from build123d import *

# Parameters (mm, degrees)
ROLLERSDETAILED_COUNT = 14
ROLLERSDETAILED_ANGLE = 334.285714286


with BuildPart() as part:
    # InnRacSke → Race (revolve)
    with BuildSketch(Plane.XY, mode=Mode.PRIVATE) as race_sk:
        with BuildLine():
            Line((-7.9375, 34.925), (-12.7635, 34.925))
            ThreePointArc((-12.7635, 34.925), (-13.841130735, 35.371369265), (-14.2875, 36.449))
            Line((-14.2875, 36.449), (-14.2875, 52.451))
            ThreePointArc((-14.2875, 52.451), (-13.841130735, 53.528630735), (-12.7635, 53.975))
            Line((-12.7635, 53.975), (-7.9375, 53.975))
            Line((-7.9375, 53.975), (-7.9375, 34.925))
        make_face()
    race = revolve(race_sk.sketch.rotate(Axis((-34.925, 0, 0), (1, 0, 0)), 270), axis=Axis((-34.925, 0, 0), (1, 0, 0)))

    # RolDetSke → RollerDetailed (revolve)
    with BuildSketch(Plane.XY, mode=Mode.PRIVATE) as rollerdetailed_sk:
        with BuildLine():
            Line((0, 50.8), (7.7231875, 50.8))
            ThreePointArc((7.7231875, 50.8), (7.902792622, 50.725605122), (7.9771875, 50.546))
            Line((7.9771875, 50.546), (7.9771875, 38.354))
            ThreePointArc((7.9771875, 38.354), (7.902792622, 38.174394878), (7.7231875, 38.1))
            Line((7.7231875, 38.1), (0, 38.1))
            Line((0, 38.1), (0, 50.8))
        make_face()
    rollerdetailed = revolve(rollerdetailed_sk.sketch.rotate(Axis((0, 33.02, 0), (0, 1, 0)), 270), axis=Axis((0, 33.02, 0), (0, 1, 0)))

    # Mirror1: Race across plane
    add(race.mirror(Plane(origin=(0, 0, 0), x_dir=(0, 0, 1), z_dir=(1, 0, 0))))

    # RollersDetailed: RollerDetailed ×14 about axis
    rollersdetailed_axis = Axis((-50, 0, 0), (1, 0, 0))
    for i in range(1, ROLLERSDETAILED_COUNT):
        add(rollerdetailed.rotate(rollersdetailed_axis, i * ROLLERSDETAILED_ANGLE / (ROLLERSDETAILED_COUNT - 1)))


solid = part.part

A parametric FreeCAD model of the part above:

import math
import FreeCAD as App
import Part
import Sketcher
from FreeCAD import Vector
Q = App.Units.Quantity

doc = App.newDocument("Part")
body = doc.addObject("PartDesign::Body", "Body")

# Sketch on XY plane
sketch1 = doc.addObject("Sketcher::SketchObject", "Sketch")
body.addObject(sketch1)
sketch1.AttachmentSupport = (doc.XY_Plane, [""])
sketch1.MapMode = "FlatFace"
sketch1.addGeometry([
    Part.LineSegment(Vector(-12.7635, 34.925, 0), Vector(-7.9375, 34.925, 0)),  # 0
    Part.LineSegment(Vector(-7.9375, 34.925, 0), Vector(-7.9375, 53.975, 0)),  # 1
    Part.LineSegment(Vector(-7.9375, 53.975, 0), Vector(-12.7635, 53.975, 0)),  # 2
    Part.ArcOfCircle(Part.Circle(Vector(-12.7635, 52.451, 0), Vector(0, 0, 1), 1.524), math.radians(90), math.radians(180)),  # 3
    Part.LineSegment(Vector(-14.2875, 52.451, 0), Vector(-14.2875, 36.449, 0)),  # 4
    Part.ArcOfCircle(Part.Circle(Vector(-12.7635, 36.449, 0), Vector(0, 0, 1), 1.524), math.radians(180), math.radians(270)),  # 5
], False)
sketch1.addConstraint([
    Sketcher.Constraint("Coincident", 0, 2, 1, 1),
    Sketcher.Constraint("Coincident", 1, 2, 2, 1),
    Sketcher.Constraint("Tangent", 2, 2, 3, 1),
    Sketcher.Constraint("Tangent", 3, 2, 4, 1),
    Sketcher.Constraint("Tangent", 4, 2, 5, 1),
    Sketcher.Constraint("Tangent", 5, 2, 0, 1),
    Sketcher.Constraint("Horizontal", 0),
    Sketcher.Constraint("Vertical", 1),
    Sketcher.Constraint("Horizontal", 2),
    Sketcher.Constraint("Vertical", 4),
    Sketcher.Constraint("Equal", 3, 5),
    Sketcher.Constraint("Radius", 3, Q("0.06 in")),
    Sketcher.Constraint("DistanceX", 0, 1, 0, 2, Q("0.19 in")),
    Sketcher.Constraint("DistanceY", 1, 1, 1, 2, Q("0.75 in")),
    Sketcher.Constraint("DistanceY", -1, 1, 3, 3, Q("2.065 in")),
    Sketcher.Constraint("DistanceX", 0, 2, -1, 1, Q("0.3125 in")),
])
revolution = doc.addObject("PartDesign::Revolution", "Revolution")
body.addObject(revolution)
revolution.Profile = sketch1
revolution.ReferenceAxis = (sketch1, ["H_Axis"])
revolution.Angle = 360

# Sketch on XY plane
sketch2 = doc.addObject("Sketcher::SketchObject", "Sketch001")
body.addObject(sketch2)
sketch2.AttachmentSupport = (doc.XY_Plane, [""])
sketch2.MapMode = "FlatFace"
sketch2.addGeometry([
    Part.LineSegment(Vector(7.723187, 50.8, 0), Vector(0, 50.8, 0)),  # 0
    Part.LineSegment(Vector(0, 50.8, 0), Vector(0, 38.1, 0)),  # 1
    Part.LineSegment(Vector(0, 38.1, 0), Vector(7.723187, 38.1, 0)),  # 2
    Part.ArcOfCircle(Part.Circle(Vector(7.723187, 38.354, 0), Vector(0, 0, 1), 0.254), math.radians(-90), math.radians(0)),  # 3
    Part.LineSegment(Vector(7.977188, 38.354, 0), Vector(7.977188, 50.546, 0)),  # 4
    Part.ArcOfCircle(Part.Circle(Vector(7.723187, 50.546, 0), Vector(0, 0, 1), 0.254), math.radians(0), math.radians(90)),  # 5
], False)
sketch2.addConstraint([
    Sketcher.Constraint("Coincident", 0, 2, 1, 1),
    Sketcher.Constraint("Coincident", 1, 2, 2, 1),
    Sketcher.Constraint("Tangent", 2, 2, 3, 1),
    Sketcher.Constraint("Tangent", 3, 2, 4, 1),
    Sketcher.Constraint("Tangent", 4, 2, 5, 1),
    Sketcher.Constraint("Tangent", 5, 2, 0, 1),
    Sketcher.Constraint("Horizontal", 0),
    Sketcher.Constraint("Vertical", 1),
    Sketcher.Constraint("Horizontal", 2),
    Sketcher.Constraint("Vertical", 4),
    Sketcher.Constraint("Equal", 3, 5),
    Sketcher.Constraint("PointOnObject", 0, 2, -2),
    Sketcher.Constraint("Radius", 3, Q("0.01 in")),
    Sketcher.Constraint("DistanceY", 1, 2, 1, 1, Q("0.5 in")),
    Sketcher.Constraint("DistanceY", -1, 1, 0, 2, Q("2 in")),
    Sketcher.Constraint("DistanceX", 0, 2, 0, 1, Q("7.723187 mm")),
])
revolution2 = doc.addObject("PartDesign::Revolution", "Revolution001")
body.addObject(revolution2)
revolution2.Profile = sketch2
revolution2.ReferenceAxis = (sketch2, ["V_Axis"])
revolution2.Angle = 360
doc.recompute()

mirrored = doc.addObject("PartDesign::Mirrored", "Mirrored")
body.addObject(mirrored)
mirrored.Originals = [revolution]
mirrored.MirrorPlane = (doc.YZ_Plane, [""])
body.Tip = mirrored
doc.recompute()

polarpattern = doc.addObject("PartDesign::PolarPattern", "PolarPattern")
body.addObject(polarpattern)
polarpattern.Originals = [revolution2]
polarpattern.Axis = (doc.X_Axis, [""])
polarpattern.Angle = 360
polarpattern.Occurrences = 14
body.Tip = polarpattern

doc.recompute()
